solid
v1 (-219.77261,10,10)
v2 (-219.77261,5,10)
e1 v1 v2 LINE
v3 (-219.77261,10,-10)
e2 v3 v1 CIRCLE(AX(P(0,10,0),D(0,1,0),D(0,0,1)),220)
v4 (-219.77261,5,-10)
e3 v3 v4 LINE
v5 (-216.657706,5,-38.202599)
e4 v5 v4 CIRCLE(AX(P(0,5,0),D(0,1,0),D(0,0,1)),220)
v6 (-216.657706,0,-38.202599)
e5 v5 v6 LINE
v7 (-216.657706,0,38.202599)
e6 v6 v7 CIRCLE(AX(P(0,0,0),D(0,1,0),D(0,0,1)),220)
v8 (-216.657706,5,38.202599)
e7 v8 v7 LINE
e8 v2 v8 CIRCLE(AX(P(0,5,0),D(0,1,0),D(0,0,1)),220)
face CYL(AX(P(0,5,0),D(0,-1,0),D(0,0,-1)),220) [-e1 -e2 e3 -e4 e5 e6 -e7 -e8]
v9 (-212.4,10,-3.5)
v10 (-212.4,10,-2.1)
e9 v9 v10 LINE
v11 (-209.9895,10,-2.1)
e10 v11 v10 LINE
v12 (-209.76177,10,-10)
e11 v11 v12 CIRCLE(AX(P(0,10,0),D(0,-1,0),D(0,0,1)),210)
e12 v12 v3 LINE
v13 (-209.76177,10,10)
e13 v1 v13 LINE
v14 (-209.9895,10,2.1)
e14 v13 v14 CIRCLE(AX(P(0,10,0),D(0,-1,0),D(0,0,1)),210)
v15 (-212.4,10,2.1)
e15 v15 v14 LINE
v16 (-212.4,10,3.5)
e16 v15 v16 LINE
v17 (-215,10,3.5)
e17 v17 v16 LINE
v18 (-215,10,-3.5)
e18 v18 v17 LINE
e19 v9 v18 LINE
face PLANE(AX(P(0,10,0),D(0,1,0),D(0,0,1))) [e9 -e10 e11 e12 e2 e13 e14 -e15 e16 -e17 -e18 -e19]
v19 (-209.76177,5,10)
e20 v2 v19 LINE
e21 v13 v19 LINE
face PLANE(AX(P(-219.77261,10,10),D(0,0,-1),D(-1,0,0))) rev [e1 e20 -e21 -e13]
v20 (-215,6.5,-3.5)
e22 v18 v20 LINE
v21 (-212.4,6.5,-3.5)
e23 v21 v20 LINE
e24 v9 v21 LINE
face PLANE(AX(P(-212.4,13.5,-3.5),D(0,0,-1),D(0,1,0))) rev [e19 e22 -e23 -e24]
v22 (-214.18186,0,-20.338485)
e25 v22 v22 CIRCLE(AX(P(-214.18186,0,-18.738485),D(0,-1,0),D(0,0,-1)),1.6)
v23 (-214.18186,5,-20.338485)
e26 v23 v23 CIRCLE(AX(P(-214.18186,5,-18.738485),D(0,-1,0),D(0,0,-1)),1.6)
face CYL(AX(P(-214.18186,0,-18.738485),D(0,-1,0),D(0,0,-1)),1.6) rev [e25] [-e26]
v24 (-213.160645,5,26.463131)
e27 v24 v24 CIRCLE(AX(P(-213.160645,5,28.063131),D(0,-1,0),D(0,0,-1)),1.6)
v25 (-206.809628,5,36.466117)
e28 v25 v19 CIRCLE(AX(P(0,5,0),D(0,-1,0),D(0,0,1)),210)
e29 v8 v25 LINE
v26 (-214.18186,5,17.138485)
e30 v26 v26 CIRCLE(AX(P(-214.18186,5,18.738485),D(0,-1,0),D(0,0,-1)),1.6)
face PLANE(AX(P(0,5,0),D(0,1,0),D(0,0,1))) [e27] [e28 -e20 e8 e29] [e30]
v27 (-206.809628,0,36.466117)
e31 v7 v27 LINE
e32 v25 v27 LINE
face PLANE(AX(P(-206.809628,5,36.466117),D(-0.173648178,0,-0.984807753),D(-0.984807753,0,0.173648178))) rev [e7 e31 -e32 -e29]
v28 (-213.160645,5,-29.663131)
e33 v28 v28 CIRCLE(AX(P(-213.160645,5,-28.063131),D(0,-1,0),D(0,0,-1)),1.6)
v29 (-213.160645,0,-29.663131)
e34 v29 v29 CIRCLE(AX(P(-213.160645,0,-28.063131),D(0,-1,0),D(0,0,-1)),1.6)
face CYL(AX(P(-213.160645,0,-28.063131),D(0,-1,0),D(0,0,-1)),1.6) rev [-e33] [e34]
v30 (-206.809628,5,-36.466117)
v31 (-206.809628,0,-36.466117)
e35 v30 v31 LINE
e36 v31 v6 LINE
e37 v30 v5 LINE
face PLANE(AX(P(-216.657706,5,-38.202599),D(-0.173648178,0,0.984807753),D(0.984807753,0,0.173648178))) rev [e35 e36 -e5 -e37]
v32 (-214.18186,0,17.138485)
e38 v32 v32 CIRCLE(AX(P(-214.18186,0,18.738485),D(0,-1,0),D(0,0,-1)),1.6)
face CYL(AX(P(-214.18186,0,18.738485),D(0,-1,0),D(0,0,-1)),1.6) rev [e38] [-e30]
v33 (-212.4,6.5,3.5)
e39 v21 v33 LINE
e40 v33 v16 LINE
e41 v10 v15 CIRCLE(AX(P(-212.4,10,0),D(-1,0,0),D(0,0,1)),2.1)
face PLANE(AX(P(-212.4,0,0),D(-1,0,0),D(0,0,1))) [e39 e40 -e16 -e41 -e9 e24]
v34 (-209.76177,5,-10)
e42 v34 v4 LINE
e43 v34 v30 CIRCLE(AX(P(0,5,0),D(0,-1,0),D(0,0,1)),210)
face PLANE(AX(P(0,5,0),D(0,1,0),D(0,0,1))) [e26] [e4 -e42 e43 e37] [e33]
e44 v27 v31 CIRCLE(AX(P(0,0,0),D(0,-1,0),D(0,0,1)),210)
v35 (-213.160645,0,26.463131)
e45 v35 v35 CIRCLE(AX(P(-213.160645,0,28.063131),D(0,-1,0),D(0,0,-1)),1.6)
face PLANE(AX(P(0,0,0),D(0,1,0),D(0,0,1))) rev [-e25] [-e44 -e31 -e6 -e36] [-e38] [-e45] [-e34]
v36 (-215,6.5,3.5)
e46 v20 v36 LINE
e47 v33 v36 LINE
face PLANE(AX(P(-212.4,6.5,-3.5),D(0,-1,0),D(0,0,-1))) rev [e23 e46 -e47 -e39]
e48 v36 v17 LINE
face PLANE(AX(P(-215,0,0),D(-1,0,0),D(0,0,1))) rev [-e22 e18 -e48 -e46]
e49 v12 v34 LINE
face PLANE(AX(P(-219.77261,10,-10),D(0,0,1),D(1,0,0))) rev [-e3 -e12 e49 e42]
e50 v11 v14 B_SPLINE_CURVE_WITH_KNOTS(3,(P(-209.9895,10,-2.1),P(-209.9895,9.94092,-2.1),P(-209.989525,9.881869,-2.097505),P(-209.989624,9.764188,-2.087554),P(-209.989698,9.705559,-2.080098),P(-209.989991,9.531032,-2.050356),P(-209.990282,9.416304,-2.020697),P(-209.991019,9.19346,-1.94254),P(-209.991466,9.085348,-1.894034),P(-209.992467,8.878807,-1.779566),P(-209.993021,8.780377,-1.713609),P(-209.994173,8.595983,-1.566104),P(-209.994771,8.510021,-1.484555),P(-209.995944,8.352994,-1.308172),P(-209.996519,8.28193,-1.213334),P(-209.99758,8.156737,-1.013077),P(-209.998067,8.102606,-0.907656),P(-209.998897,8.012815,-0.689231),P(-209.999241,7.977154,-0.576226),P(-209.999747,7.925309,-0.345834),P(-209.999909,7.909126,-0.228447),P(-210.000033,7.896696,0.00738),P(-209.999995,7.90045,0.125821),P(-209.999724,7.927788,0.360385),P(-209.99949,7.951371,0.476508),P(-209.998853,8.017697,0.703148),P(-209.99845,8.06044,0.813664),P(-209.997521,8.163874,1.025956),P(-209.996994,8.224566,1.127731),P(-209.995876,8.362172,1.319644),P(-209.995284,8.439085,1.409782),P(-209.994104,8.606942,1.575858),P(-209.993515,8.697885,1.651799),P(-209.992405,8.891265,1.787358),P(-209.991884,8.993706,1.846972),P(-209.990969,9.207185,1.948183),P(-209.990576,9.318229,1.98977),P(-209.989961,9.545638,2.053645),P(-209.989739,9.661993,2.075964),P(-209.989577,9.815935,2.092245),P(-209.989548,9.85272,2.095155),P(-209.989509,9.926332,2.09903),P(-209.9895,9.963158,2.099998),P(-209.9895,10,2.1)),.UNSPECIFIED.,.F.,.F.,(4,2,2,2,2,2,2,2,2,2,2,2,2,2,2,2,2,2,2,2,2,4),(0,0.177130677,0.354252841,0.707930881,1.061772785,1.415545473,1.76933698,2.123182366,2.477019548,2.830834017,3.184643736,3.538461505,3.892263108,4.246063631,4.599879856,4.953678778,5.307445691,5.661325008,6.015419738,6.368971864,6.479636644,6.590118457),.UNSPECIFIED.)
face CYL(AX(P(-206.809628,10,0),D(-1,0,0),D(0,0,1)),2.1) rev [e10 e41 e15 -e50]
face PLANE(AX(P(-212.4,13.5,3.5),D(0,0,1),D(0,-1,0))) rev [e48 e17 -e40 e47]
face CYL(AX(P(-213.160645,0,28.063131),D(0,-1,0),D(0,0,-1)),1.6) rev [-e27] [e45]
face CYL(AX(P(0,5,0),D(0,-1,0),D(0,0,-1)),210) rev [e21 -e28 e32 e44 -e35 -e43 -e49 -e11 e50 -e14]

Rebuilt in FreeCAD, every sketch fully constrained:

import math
import FreeCAD as App
import Part
import Sketcher
Q = App.Units.Quantity

doc = App.newDocument("Part")
body = doc.addObject("PartDesign::Body", "Body")

# Sketch on XZ plane
sketch1 = body.newObject("Sketcher::SketchObject", "Sketch")
sketch1.AttachmentSupport = (doc.getObject("XZ_Plane"), [""])
sketch1.MapMode = "FlatFace"
sketch1.addGeometry(Part.LineSegment(App.Vector(-207, -36, 0), App.Vector(-217, -38, 0)), False)
sketch1.addGeometry(Part.ArcOfCircle(Part.Circle(App.Vector(0, 0, 0), App.Vector(0, 0, 1), 220), math.radians(170), math.radians(190)), False)
sketch1.addGeometry(Part.LineSegment(App.Vector(-217, 38, 0), App.Vector(-207, 36, 0)), False)
sketch1.addGeometry(Part.ArcOfCircle(Part.Circle(App.Vector(0, 0, 0), App.Vector(0, 0, 1), 210), math.radians(170), math.radians(190)), False)
sketch1.addConstraint(Sketcher.Constraint("Coincident", 0, 2, 1, 2))
sketch1.addConstraint(Sketcher.Constraint("Coincident", 1, 1, 2, 1))
sketch1.addConstraint(Sketcher.Constraint("Coincident", 2, 2, 3, 1))
sketch1.addConstraint(Sketcher.Constraint("Coincident", 3, 2, 0, 1))
sketch1.addConstraint(Sketcher.Constraint("Coincident", 1, 3, -1, 1))
sketch1.addConstraint(Sketcher.Constraint("Coincident", 3, 3, -1, 1))
sketch1.addConstraint(Sketcher.Constraint("Vertical", 0, 2, 1, 1))
sketch1.addConstraint(Sketcher.Constraint("Vertical", 2, 2, 3, 2))
sketch1.addConstraint(Sketcher.Constraint("Radius", 1, 220.0))
sketch1.addConstraint(Sketcher.Constraint("Radius", 3, 210.0))
sketch1.addConstraint(Sketcher.Constraint("Angle", 0, Q("-170 deg")))
sketch1.addConstraint(Sketcher.Constraint("DistanceY", 0, 2, -1, 1, 38.202599))
pad1 = body.newObject("PartDesign::Pad", "Pad")
pad1.Profile = sketch1
pad1.Length = 5
pad1.Reversed = True

# Sketch on XZ plane
sketch2 = body.newObject("Sketcher::SketchObject", "Sketch001")
sketch2.AttachmentSupport = (doc.getObject("XZ_Plane"), [""])
sketch2.MapMode = "FlatFace"
sketch2.addGeometry(Part.Circle(App.Vector(-214.2, 18.7, 0), App.Vector(0, 0, 1), 1.6), False)
sketch2.addGeometry(Part.Circle(App.Vector(-214.2, -18.7, 0), App.Vector(0, 0, 1), 1.6), False)
sketch2.addGeometry(Part.Circle(App.Vector(-213.2, 28.1, 0), App.Vector(0, 0, 1), 1.6), False)
sketch2.addGeometry(Part.Circle(App.Vector(-213.2, -28.1, 0), App.Vector(0, 0, 1), 1.6), False)
sketch2.addConstraint(Sketcher.Constraint("Equal", 0, 1))
sketch2.addConstraint(Sketcher.Constraint("Equal", 1, 2))
sketch2.addConstraint(Sketcher.Constraint("Equal", 2, 3))
sketch2.addConstraint(Sketcher.Constraint("Symmetric", 0, 3, 1, 3, -1))
sketch2.addConstraint(Sketcher.Constraint("Symmetric", 2, 3, 3, 3, -1))
sketch2.addConstraint(Sketcher.Constraint("Diameter", 0, 3.2))
sketch2.addConstraint(Sketcher.Constraint("DistanceX", 0, 3, -1, 1, 214.18186))
sketch2.addConstraint(Sketcher.Constraint("DistanceY", -1, 1, 2, 3, 28.063131))
sketch2.addConstraint(Sketcher.Constraint("DistanceY", 1, 3, 0, 3, 37.476969))
sketch2.addConstraint(Sketcher.Constraint("DistanceX", 2, 3, -1, 1, 213.160645))
doc.recompute()
hole = body.newObject("PartDesign::Hole", "Hole")
hole.Profile = sketch2
hole.ThreadType = "None"
hole.Diameter = 3.2
hole.DepthType = "ThroughAll"

# Sketch on XZ plane
sketch3 = body.newObject("Sketcher::SketchObject", "Sketch002")
sketch3.AttachmentSupport = (doc.getObject("XZ_Plane"), [""])
sketch3.MapMode = "FlatFace"
sketch3.AttachmentOffset = App.Placement(App.Vector(0, 0, -5), App.Rotation())
sketch3.addGeometry(Part.LineSegment(App.Vector(-210, -10, 0), App.Vector(-220, -10, 0)), False)
sketch3.addGeometry(Part.ArcOfCircle(Part.Circle(App.Vector(0, 0, 0), App.Vector(0, 0, 1), 220), math.radians(177.39), math.radians(182.61)), False)
sketch3.addGeometry(Part.LineSegment(App.Vector(-220, 10, 0), App.Vector(-210, 10, 0)), False)
sketch3.addGeometry(Part.ArcOfCircle(Part.Circle(App.Vector(0, 0, 0), App.Vector(0, 0, 1), 210), math.radians(177.27), math.radians(182.73)), False)
sketch3.addConstraint(Sketcher.Constraint("Coincident", 0, 2, 1, 2))
sketch3.addConstraint(Sketcher.Constraint("Coincident", 1, 1, 2, 1))
sketch3.addConstraint(Sketcher.Constraint("Coincident", 2, 2, 3, 1))
sketch3.addConstraint(Sketcher.Constraint("Coincident", 3, 2, 0, 1))
sketch3.addConstraint(Sketcher.Constraint("Horizontal", 0))
sketch3.addConstraint(Sketcher.Constraint("Horizontal", 2))
sketch3.addConstraint(Sketcher.Constraint("Coincident", 1, 3, -1, 1))
sketch3.addConstraint(Sketcher.Constraint("Coincident", 3, 3, -1, 1))
sketch3.addConstraint(Sketcher.Constraint("Vertical", 0, 2, 1, 1))
sketch3.addConstraint(Sketcher.Constraint("Radius", 1, 220.0))
sketch3.addConstraint(Sketcher.Constraint("Radius", 3, 210.0))
sketch3.addConstraint(Sketcher.Constraint("DistanceY", 0, 2, -1, 1, 10.0))
pad2 = body.newObject("PartDesign::Pad", "Pad001")
pad2.Profile = sketch3
pad2.Length = 5
pad2.Reversed = True

# Sketch on YZ plane
sketch4 = body.newObject("Sketcher::SketchObject", "Sketch003")
sketch4.AttachmentSupport = (doc.getObject("YZ_Plane"), [""])
sketch4.MapMode = "FlatFace"
sketch4.AttachmentOffset = App.Placement(App.Vector(0, 0, -215), App.Rotation())
sketch4.addGeometry(Part.LineSegment(App.Vector(14, -4, 0), App.Vector(6, -4, 0)), False)
sketch4.addGeometry(Part.LineSegment(App.Vector(6, -4, 0), App.Vector(6, 4, 0)), False)
sketch4.addGeometry(Part.LineSegment(App.Vector(6, 4, 0), App.Vector(14, 4, 0)), False)
sketch4.addGeometry(Part.LineSegment(App.Vector(14, 4, 0), App.Vector(14, -4, 0)), False)
sketch4.addConstraint(Sketcher.Constraint("Coincident", 0, 2, 1, 1))
sketch4.addConstraint(Sketcher.Constraint("Coincident", 1, 2, 2, 1))
sketch4.addConstraint(Sketcher.Constraint("Coincident", 2, 2, 3, 1))
sketch4.addConstraint(Sketcher.Constraint("Coincident", 3, 2, 0, 1))
sketch4.addConstraint(Sketcher.Constraint("Horizontal", 0))
sketch4.addConstraint(Sketcher.Constraint("Vertical", 1))
sketch4.addConstraint(Sketcher.Constraint("Horizontal", 2))
sketch4.addConstraint(Sketcher.Constraint("Vertical", 3))
sketch4.addConstraint(Sketcher.Constraint("Equal", 2, 1))
sketch4.addConstraint(Sketcher.Constraint("DistanceX", 0, 2, 0, 1, 7.0))
sketch4.addConstraint(Sketcher.Constraint("DistanceX", -1, 1, 0, 2, 6.5))
sketch4.addConstraint(Sketcher.Constraint("DistanceY", 0, 2, -1, 1, 3.5))
pocket1 = body.newObject("PartDesign::Pocket", "Pocket")
pocket1.Profile = sketch4
pocket1.Length = 2.6
pocket1.Reversed = True

# Sketch on YZ plane
sketch5 = body.newObject("Sketcher::SketchObject", "Sketch004")
sketch5.AttachmentSupport = (doc.getObject("YZ_Plane"), [""])
sketch5.MapMode = "FlatFace"
sketch5.AttachmentOffset = App.Placement(App.Vector(0, 0, -215), App.Rotation())
sketch5.addGeometry(Part.Circle(App.Vector(10, 0, 0), App.Vector(0, 0, 1), 2.1), False)
sketch5.addConstraint(Sketcher.Constraint("PointOnObject", 0, 3, -1))
sketch5.addConstraint(Sketcher.Constraint("Diameter", 0, 4.2))
sketch5.addConstraint(Sketcher.Constraint("DistanceX", -1, 1, 0, 3, 10.0))
pocket2 = body.newObject("PartDesign::Pocket", "Pocket001")
pocket2.Profile = sketch5
pocket2.Type = "ThroughAll"
pocket2.Reversed = True

doc.recompute()
